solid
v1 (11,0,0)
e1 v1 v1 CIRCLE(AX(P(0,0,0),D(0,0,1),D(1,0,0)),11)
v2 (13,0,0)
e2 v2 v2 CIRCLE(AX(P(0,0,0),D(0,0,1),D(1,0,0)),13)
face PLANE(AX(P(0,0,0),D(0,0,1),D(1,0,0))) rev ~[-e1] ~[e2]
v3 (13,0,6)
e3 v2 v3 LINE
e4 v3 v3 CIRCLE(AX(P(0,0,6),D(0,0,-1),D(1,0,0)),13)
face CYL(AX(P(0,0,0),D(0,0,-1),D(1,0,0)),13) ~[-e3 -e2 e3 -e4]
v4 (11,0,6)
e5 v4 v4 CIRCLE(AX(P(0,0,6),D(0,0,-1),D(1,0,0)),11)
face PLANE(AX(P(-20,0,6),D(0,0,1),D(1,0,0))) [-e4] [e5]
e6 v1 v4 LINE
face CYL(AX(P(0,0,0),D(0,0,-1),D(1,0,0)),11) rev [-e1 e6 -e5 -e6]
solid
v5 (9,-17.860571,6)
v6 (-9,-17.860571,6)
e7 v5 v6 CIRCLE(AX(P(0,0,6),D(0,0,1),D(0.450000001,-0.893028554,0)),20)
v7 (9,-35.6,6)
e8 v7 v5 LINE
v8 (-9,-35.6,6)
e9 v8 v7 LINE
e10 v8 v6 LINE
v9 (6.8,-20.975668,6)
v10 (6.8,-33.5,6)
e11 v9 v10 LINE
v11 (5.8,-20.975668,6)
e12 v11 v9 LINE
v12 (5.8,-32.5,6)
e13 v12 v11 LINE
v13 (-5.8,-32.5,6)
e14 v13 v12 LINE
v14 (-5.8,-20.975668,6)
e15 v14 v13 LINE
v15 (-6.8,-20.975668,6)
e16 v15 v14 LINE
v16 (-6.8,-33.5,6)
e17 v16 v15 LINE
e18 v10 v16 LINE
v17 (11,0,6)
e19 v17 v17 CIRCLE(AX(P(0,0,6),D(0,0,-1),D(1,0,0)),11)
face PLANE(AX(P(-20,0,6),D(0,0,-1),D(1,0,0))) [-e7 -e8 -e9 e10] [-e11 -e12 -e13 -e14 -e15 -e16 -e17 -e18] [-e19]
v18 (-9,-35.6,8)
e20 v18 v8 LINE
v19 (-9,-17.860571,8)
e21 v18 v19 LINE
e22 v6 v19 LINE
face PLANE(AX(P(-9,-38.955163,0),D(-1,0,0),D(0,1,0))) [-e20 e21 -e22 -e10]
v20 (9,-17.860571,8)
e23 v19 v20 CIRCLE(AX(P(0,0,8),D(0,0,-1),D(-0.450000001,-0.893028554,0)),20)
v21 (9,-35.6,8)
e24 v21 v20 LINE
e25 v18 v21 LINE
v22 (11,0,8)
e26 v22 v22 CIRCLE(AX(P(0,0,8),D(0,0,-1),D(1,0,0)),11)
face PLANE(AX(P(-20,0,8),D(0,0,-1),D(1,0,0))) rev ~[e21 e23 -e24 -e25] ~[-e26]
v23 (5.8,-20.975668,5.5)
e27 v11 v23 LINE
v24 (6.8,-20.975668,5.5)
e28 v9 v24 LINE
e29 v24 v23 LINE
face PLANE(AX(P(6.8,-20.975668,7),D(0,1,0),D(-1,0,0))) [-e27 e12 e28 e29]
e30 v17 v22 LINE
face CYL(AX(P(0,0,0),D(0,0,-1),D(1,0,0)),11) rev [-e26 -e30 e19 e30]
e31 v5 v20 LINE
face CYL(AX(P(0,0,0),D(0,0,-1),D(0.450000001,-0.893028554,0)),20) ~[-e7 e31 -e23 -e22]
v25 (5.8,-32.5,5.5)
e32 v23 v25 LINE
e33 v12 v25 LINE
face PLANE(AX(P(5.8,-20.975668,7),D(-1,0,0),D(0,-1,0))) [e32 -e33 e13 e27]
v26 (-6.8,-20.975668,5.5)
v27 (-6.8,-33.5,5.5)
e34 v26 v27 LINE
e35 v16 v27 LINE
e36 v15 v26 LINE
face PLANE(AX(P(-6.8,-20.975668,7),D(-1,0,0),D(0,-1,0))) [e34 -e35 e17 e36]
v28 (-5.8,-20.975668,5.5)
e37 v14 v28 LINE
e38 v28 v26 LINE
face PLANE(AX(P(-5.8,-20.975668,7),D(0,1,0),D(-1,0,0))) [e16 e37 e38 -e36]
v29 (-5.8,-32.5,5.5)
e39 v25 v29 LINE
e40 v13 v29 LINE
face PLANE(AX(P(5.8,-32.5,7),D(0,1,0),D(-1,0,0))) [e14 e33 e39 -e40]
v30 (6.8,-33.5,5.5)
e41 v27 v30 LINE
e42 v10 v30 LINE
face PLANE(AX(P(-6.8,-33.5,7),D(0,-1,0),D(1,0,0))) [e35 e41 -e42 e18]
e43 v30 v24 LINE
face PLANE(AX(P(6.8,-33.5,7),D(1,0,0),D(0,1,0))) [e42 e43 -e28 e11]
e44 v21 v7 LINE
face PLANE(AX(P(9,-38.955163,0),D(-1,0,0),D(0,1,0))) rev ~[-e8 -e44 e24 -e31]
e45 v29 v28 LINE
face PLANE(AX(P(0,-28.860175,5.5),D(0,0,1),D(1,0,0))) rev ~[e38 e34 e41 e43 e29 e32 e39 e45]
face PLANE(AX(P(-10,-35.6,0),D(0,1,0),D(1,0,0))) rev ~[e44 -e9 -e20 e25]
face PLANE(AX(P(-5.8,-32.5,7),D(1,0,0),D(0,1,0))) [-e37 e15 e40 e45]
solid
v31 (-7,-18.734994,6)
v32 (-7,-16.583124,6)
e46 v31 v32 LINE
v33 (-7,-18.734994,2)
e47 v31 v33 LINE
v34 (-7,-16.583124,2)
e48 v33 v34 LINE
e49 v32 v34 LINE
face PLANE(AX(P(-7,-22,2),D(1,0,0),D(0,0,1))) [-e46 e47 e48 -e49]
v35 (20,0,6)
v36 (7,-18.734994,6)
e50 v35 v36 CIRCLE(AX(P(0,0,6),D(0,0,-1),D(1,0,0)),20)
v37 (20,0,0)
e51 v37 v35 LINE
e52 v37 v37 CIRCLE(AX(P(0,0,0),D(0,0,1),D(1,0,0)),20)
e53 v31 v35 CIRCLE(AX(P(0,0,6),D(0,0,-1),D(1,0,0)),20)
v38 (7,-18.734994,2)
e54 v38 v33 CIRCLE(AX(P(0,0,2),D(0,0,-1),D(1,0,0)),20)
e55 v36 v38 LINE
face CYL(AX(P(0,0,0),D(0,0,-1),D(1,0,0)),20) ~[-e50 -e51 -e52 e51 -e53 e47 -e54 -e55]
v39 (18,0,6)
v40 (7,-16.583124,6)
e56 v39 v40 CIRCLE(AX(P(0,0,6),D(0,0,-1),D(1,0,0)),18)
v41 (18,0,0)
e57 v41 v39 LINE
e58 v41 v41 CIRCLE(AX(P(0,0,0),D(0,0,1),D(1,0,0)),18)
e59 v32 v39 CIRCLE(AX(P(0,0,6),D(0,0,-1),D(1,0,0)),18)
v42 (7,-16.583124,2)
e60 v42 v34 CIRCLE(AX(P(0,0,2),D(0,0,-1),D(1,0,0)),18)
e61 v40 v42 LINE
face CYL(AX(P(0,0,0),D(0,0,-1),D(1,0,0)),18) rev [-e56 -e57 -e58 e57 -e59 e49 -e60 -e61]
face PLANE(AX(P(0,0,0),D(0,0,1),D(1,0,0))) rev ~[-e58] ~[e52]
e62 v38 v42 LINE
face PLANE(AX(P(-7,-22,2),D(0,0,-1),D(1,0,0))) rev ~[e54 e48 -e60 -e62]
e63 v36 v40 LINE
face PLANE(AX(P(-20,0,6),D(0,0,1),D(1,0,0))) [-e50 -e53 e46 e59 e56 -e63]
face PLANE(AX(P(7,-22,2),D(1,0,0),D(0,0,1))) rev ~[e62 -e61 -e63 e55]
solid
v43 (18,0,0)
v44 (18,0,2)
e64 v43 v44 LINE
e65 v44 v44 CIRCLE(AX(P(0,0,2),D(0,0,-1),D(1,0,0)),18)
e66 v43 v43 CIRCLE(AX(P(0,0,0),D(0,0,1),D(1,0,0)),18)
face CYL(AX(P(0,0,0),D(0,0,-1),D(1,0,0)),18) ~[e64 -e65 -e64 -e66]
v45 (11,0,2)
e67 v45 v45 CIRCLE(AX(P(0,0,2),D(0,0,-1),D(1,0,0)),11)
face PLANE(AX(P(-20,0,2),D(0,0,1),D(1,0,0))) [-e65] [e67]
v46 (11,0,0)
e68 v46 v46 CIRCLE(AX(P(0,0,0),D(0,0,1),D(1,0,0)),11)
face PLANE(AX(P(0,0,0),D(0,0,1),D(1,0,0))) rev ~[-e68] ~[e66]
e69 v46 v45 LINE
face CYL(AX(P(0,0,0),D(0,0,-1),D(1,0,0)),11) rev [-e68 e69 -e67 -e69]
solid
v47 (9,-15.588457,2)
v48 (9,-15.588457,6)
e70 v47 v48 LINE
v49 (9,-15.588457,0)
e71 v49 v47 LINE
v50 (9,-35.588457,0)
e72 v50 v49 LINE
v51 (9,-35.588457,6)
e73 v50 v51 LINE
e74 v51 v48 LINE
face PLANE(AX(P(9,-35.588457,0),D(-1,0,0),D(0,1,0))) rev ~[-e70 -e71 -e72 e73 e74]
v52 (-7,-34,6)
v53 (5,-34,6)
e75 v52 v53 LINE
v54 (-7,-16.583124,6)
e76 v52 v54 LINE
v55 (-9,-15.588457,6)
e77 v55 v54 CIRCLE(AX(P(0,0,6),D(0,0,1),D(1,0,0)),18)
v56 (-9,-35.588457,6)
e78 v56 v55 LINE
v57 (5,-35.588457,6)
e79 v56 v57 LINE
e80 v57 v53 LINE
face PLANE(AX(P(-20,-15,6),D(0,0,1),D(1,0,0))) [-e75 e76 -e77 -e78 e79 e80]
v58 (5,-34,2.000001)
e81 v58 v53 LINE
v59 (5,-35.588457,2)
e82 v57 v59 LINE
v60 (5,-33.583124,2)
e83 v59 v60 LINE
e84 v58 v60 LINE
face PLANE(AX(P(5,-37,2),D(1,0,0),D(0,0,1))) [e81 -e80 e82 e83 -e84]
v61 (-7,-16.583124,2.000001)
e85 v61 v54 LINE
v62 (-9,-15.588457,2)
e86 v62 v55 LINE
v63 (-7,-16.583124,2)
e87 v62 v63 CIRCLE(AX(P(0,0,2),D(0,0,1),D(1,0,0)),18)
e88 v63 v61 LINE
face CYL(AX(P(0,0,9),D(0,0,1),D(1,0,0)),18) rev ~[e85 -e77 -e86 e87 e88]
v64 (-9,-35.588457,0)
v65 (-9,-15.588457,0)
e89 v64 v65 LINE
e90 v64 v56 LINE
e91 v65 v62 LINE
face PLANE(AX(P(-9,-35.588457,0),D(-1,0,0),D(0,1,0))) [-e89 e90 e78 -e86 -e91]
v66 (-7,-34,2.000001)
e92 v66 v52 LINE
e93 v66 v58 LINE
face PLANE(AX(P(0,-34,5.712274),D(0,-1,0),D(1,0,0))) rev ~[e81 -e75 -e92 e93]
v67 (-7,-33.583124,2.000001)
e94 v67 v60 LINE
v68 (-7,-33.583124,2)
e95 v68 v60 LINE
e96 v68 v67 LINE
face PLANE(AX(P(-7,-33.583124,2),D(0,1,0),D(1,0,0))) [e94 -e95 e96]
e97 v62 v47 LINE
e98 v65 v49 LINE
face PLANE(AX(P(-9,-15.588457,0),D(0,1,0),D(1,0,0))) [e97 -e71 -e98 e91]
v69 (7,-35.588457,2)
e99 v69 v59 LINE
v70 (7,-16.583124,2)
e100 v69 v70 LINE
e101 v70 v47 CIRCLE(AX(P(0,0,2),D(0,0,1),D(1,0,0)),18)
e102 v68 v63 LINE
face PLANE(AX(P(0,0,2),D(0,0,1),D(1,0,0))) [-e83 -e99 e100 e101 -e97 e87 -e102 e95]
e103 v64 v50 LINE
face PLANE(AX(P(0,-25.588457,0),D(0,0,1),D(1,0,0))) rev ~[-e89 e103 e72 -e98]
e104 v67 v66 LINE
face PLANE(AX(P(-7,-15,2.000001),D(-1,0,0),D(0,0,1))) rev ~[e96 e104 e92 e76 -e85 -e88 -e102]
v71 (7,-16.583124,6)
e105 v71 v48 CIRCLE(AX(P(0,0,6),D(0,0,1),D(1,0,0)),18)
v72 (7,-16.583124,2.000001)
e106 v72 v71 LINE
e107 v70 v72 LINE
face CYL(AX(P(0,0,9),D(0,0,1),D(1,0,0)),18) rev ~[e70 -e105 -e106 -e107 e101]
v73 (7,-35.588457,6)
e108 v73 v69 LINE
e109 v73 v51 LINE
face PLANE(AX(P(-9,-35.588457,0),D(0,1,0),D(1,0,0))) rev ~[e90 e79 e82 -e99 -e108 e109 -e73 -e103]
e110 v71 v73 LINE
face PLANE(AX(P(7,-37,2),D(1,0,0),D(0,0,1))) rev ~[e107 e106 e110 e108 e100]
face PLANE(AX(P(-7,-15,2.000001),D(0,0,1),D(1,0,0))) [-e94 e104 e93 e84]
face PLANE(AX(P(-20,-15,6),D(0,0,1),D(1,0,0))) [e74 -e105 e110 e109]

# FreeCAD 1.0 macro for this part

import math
import FreeCAD as App
import Part
import Sketcher

V = App.Vector
Q = App.Units.Quantity


def add_polygon(sketch, points):
    """Adds a closed chain of lines whose ends are joined by coincident constraints."""
    first, n = sketch.GeometryCount, len(points)
    for a, b in zip(points, points[1:] + points[:1]):
        sketch.addGeometry(Part.LineSegment(App.Vector(*a, 0), App.Vector(*b, 0)), False)
    for i in range(n):
        sketch.addConstraint(Sketcher.Constraint("Coincident", first + i, 2, first + (i + 1) % n, 1))

doc = App.newDocument("Part")
body = doc.addObject("PartDesign::Body", "Body")

# Sketch on XY plane
sketch1 = body.newObject("Sketcher::SketchObject", "Sketch")
sketch1.AttachmentSupport = (doc.getObject("XY_Plane"), [""])
sketch1.MapMode = "FlatFace"
sketch1.addGeometry(Part.Circle(V(0, 0, 0), V(0, 0, 1), 20), False)
sketch1.addConstraint(Sketcher.Constraint("Coincident", 0, 3, -1, 1))
sketch1.addConstraint(Sketcher.Constraint("Diameter", 0, Q("40 mm")))
pad1 = body.newObject("PartDesign::Pad", "Pad")
pad1.Profile = sketch1
pad1.Length = 30

# Sketch on XY plane
sketch2 = body.newObject("Sketcher::SketchObject", "Sketch001")
sketch2.AttachmentSupport = (doc.getObject("XY_Plane"), [""])
sketch2.MapMode = "FlatFace"
sketch2.addGeometry(Part.Circle(V(0, 0, 0), V(0, 0, 1), 18), False)
sketch2.addConstraint(Sketcher.Constraint("Coincident", 0, 3, -1, 1))
sketch2.addConstraint(Sketcher.Constraint("Diameter", 0, Q("36 mm")))
pocket1 = body.newObject("PartDesign::Pocket", "Pocket")
pocket1.Profile = sketch2
pocket1.Length = 40
pocket1.Reversed = True

# Sketch on XZ plane
sketch3 = body.newObject("Sketcher::SketchObject", "Sketch002")
sketch3.AttachmentSupport = (doc.getObject("XZ_Plane"), [""])
sketch3.MapMode = "FlatFace"
add_polygon(sketch3, [(-20, 32), (-20, 6), (20, 6), (20, 32)])  # lines 0-3
sketch3.addConstraint(Sketcher.Constraint("Vertical", 0))
sketch3.addConstraint(Sketcher.Constraint("Horizontal", 1))
sketch3.addConstraint(Sketcher.Constraint("Vertical", 2))
sketch3.addConstraint(Sketcher.Constraint("Horizontal", 3))
sketch3.addConstraint(Sketcher.Constraint("DistanceX", 1, 1, 1, 2, Q("40 mm")))
sketch3.addConstraint(Sketcher.Constraint("DistanceY", 0, 2, 0, 1, Q("26 mm")))
sketch3.addConstraint(Sketcher.Constraint("DistanceX", 0, 2, -1, 1, Q("20 mm")))
sketch3.addConstraint(Sketcher.Constraint("DistanceY", -1, 1, 0, 2, Q("6 mm")))
pocket2 = body.newObject("PartDesign::Pocket", "Pocket001")
pocket2.Profile = sketch3
pocket2.Type = "ThroughAll"
pocket2.Midplane = True

# Sketch on XZ plane
sketch4 = body.newObject("Sketcher::SketchObject", "Sketch003")
sketch4.AttachmentSupport = (doc.getObject("XZ_Plane"), [""])
sketch4.MapMode = "FlatFace"
sketch4.AttachmentOffset = App.Placement(V(0, 0, 22), App.Rotation())
add_polygon(sketch4, [(-7, 10), (-7, 2), (7, 2), (7, 10)])  # lines 0-3
sketch4.addConstraint(Sketcher.Constraint("Vertical", 0))
sketch4.addConstraint(Sketcher.Constraint("Horizontal", 1))
sketch4.addConstraint(Sketcher.Constraint("Vertical", 2))
sketch4.addConstraint(Sketcher.Constraint("Horizontal", 3))
sketch4.addConstraint(Sketcher.Constraint("DistanceX", 1, 1, 1, 2, Q("14 mm")))
sketch4.addConstraint(Sketcher.Constraint("DistanceX", 0, 2, -1, 1, Q("7 mm")))
sketch4.addConstraint(Sketcher.Constraint("DistanceY", -1, 1, 0, 2, Q("2 mm")))
sketch4.addConstraint(Sketcher.Constraint("DistanceY", 0, 2, 0, 1, Q("7.569522 mm")))
pocket3 = body.newObject("PartDesign::Pocket", "Pocket002")
pocket3.Profile = sketch4
pocket3.Length = 6
body2 = doc.addObject("PartDesign::Body", "Body001")

# Sketch on XY plane
sketch5 = body2.newObject("Sketcher::SketchObject", "Sketch004")
sketch5.AttachmentSupport = (doc.getObject("XY_Plane001"), [""])
sketch5.MapMode = "FlatFace"
sketch5.addGeometry(Part.Circle(V(0, 0, 0), V(0, 0, 1), 13), False)
sketch5.addConstraint(Sketcher.Constraint("Coincident", 0, 3, -1, 1))
sketch5.addConstraint(Sketcher.Constraint("Diameter", 0, Q("26 mm")))
pad2 = body2.newObject("PartDesign::Pad", "Pad001")
pad2.Profile = sketch5
pad2.Length = 30

# Sketch on XZ plane
sketch6 = body2.newObject("Sketcher::SketchObject", "Sketch005")
sketch6.AttachmentSupport = (doc.getObject("XZ_Plane001"), [""])
sketch6.MapMode = "FlatFace"
add_polygon(sketch6, [(-20, 32), (-20, 6), (20, 6), (20, 32)])  # lines 0-3
sketch6.addConstraint(Sketcher.Constraint("Vertical", 0))
sketch6.addConstraint(Sketcher.Constraint("Horizontal", 1))
sketch6.addConstraint(Sketcher.Constraint("Vertical", 2))
sketch6.addConstraint(Sketcher.Constraint("Horizontal", 3))
sketch6.addConstraint(Sketcher.Constraint("DistanceX", 1, 1, 1, 2, Q("40 mm")))
sketch6.addConstraint(Sketcher.Constraint("DistanceY", 0, 2, 0, 1, Q("26 mm")))
sketch6.addConstraint(Sketcher.Constraint("DistanceX", 0, 2, -1, 1, Q("20 mm")))
sketch6.addConstraint(Sketcher.Constraint("DistanceY", -1, 1, 0, 2, Q("6 mm")))
pocket4 = body2.newObject("PartDesign::Pocket", "Pocket003")
pocket4.Profile = sketch6
pocket4.Type = "ThroughAll"
pocket4.Midplane = True

# Sketch on XY plane
sketch7 = body2.newObject("Sketcher::SketchObject", "Sketch006")
sketch7.AttachmentSupport = (doc.getObject("XY_Plane001"), [""])
sketch7.MapMode = "FlatFace"
sketch7.addGeometry(Part.Circle(V(0, 0, 0), V(0, 0, 1), 11), False)
sketch7.addConstraint(Sketcher.Constraint("Coincident", 0, 3, -1, 1))
sketch7.addConstraint(Sketcher.Constraint("Diameter", 0, Q("22 mm")))
pocket5 = body2.newObject("PartDesign::Pocket", "Pocket004")
pocket5.Profile = sketch7
pocket5.Type = "ThroughAll"
pocket5.Reversed = True
body3 = doc.addObject("PartDesign::Body", "Body002")

# Sketch on XY plane
sketch8 = body3.newObject("Sketcher::SketchObject", "Sketch007")
sketch8.AttachmentSupport = (doc.getObject("XY_Plane002"), [""])
sketch8.MapMode = "FlatFace"
sketch8.addGeometry(Part.Circle(V(0, 0, 0), V(0, 0, 1), 18), False)
sketch8.addConstraint(Sketcher.Constraint("Coincident", 0, 3, -1, 1))
sketch8.addConstraint(Sketcher.Constraint("Diameter", 0, Q("36 mm")))
pad3 = body3.newObject("PartDesign::Pad", "Pad002")
pad3.Profile = sketch8
pad3.Length = 30

# Sketch on XZ plane
sketch9 = body3.newObject("Sketcher::SketchObject", "Sketch008")
sketch9.AttachmentSupport = (doc.getObject("XZ_Plane002"), [""])
sketch9.MapMode = "FlatFace"
add_polygon(sketch9, [(-20, 32), (-20, 2), (20, 2), (20, 32)])  # lines 0-3
sketch9.addConstraint(Sketcher.Constraint("Vertical", 0))
sketch9.addConstraint(Sketcher.Constraint("Horizontal", 1))
sketch9.addConstraint(Sketcher.Constraint("Vertical", 2))
sketch9.addConstraint(Sketcher.Constraint("Horizontal", 3))
sketch9.addConstraint(Sketcher.Constraint("DistanceX", 1, 1, 1, 2, Q("40 mm")))
sketch9.addConstraint(Sketcher.Constraint("DistanceY", 0, 2, 0, 1, Q("30 mm")))
sketch9.addConstraint(Sketcher.Constraint("DistanceX", 0, 2, -1, 1, Q("20 mm")))
sketch9.addConstraint(Sketcher.Constraint("DistanceY", -1, 1, 0, 2, Q("2 mm")))
pocket6 = body3.newObject("PartDesign::Pocket", "Pocket005")
pocket6.Profile = sketch9
pocket6.Type = "ThroughAll"
pocket6.Midplane = True

# Sketch on XY plane
sketch10 = body3.newObject("Sketcher::SketchObject", "Sketch009")
sketch10.AttachmentSupport = (doc.getObject("XY_Plane002"), [""])
sketch10.MapMode = "FlatFace"
sketch10.addGeometry(Part.Circle(V(0, 0, 0), V(0, 0, 1), 11), False)
sketch10.addConstraint(Sketcher.Constraint("Coincident", 0, 3, -1, 1))
sketch10.addConstraint(Sketcher.Constraint("Diameter", 0, Q("22 mm")))
pocket7 = body3.newObject("PartDesign::Pocket", "Pocket006")
pocket7.Profile = sketch10
pocket7.Type = "ThroughAll"
pocket7.Reversed = True
body4 = doc.addObject("PartDesign::Body", "Body003")

# Sketch on XY plane
sketch11 = body4.newObject("Sketcher::SketchObject", "Sketch010")
sketch11.AttachmentSupport = (doc.getObject("XY_Plane003"), [""])
sketch11.MapMode = "FlatFace"
add_polygon(sketch11, [(-9, -16), (-9, -36), (9, -36), (9, -16)])  # lines 0-3
sketch11.addConstraint(Sketcher.Constraint("Vertical", 0))
sketch11.addConstraint(Sketcher.Constraint("Horizontal", 1))
sketch11.addConstraint(Sketcher.Constraint("Vertical", 2))
sketch11.addConstraint(Sketcher.Constraint("Horizontal", 3))
sketch11.addConstraint(Sketcher.Constraint("DistanceX", 1, 1, 1, 2, Q("18 mm")))
sketch11.addConstraint(Sketcher.Constraint("DistanceY", 0, 2, 0, 1, Q("20 mm")))
sketch11.addConstraint(Sketcher.Constraint("DistanceX", 0, 2, -1, 1, Q("9 mm")))
sketch11.addConstraint(Sketcher.Constraint("DistanceY", 0, 2, -1, 1, Q("35.588457 mm")))
pad4 = body4.newObject("PartDesign::Pad", "Pad003")
pad4.Profile = sketch11
pad4.Length = 9

# Sketch on XY plane
sketch12 = body4.newObject("Sketcher::SketchObject", "Sketch011")
sketch12.AttachmentSupport = (doc.getObject("XY_Plane003"), [""])
sketch12.MapMode = "FlatFace"
sketch12.AttachmentOffset = App.Placement(V(0, 0, 2), App.Rotation())
add_polygon(sketch12, [(-7, -17), (-7, -34), (7, -34), (7, -17)])  # lines 0-3
sketch12.addConstraint(Sketcher.Constraint("Vertical", 0))
sketch12.addConstraint(Sketcher.Constraint("Horizontal", 1))
sketch12.addConstraint(Sketcher.Constraint("Vertical", 2))
sketch12.addConstraint(Sketcher.Constraint("Horizontal", 3))
sketch12.addConstraint(Sketcher.Constraint("DistanceX", 1, 1, 1, 2, Q("14 mm")))
sketch12.addConstraint(Sketcher.Constraint("DistanceY", 0, 2, 0, 1, Q("17 mm")))
sketch12.addConstraint(Sketcher.Constraint("DistanceX", 0, 2, -1, 1, Q("7 mm")))
sketch12.addConstraint(Sketcher.Constraint("DistanceY", 0, 2, -1, 1, Q("33.583124 mm")))
pocket8 = body4.newObject("PartDesign::Pocket", "Pocket007")
pocket8.Profile = sketch12
pocket8.Length = 7
pocket8.Reversed = True

# Sketch on XZ plane
sketch13 = body4.newObject("Sketcher::SketchObject", "Sketch012")
sketch13.AttachmentSupport = (doc.getObject("XZ_Plane003"), [""])
sketch13.MapMode = "FlatFace"
sketch13.AttachmentOffset = App.Placement(V(0, 0, 15), App.Rotation())
add_polygon(sketch13, [(-20, 32), (-20, 6), (20, 6), (20, 32)])  # lines 0-3
sketch13.addConstraint(Sketcher.Constraint("Vertical", 0))
sketch13.addConstraint(Sketcher.Constraint("Horizontal", 1))
sketch13.addConstraint(Sketcher.Constraint("Vertical", 2))
sketch13.addConstraint(Sketcher.Constraint("Horizontal", 3))
sketch13.addConstraint(Sketcher.Constraint("DistanceX", 1, 1, 1, 2, Q("40 mm")))
sketch13.addConstraint(Sketcher.Constraint("DistanceY", 0, 2, 0, 1, Q("26 mm")))
sketch13.addConstraint(Sketcher.Constraint("DistanceX", 0, 2, -1, 1, Q("20 mm")))
sketch13.addConstraint(Sketcher.Constraint("DistanceY", -1, 1, 0, 2, Q("6 mm")))
pocket9 = body4.newObject("PartDesign::Pocket", "Pocket008")
pocket9.Profile = sketch13
pocket9.Length = 21
pocket9.Reversed = True

# Sketch on XZ plane
sketch14 = body4.newObject("Sketcher::SketchObject", "Sketch013")
sketch14.AttachmentSupport = (doc.getObject("XZ_Plane003"), [""])
sketch14.MapMode = "FlatFace"
sketch14.AttachmentOffset = App.Placement(V(0, 0, 15), App.Rotation())
add_polygon(sketch14, [(-7, 9), (-7, 2), (7, 2), (7, 9)])  # lines 0-3
sketch14.addConstraint(Sketcher.Constraint("Vertical", 0))
sketch14.addConstraint(Sketcher.Constraint("Horizontal", 1))
sketch14.addConstraint(Sketcher.Constraint("Vertical", 2))
sketch14.addConstraint(Sketcher.Constraint("Horizontal", 3))
sketch14.addConstraint(Sketcher.Constraint("DistanceX", 1, 1, 1, 2, Q("14 mm")))
sketch14.addConstraint(Sketcher.Constraint("DistanceX", 0, 2, -1, 1, Q("7 mm")))
sketch14.addConstraint(Sketcher.Constraint("DistanceY", -1, 1, 0, 2, Q("2.000001 mm")))
sketch14.addConstraint(Sketcher.Constraint("DistanceY", 0, 2, 0, 1, Q("7.424547 mm")))
pocket10 = body4.newObject("PartDesign::Pocket", "Pocket009")
pocket10.Profile = sketch14
pocket10.Length = 19
pocket10.Reversed = True

# Sketch on XY plane
sketch15 = body4.newObject("Sketcher::SketchObject", "Sketch014")
sketch15.AttachmentSupport = (doc.getObject("XY_Plane003"), [""])
sketch15.MapMode = "FlatFace"
sketch15.AttachmentOffset = App.Placement(V(0, 0, 9), App.Rotation())
sketch15.addGeometry(Part.Circle(V(0, 0, 0), V(0, 0, 1), 18), False)
sketch15.addConstraint(Sketcher.Constraint("Coincident", 0, 3, -1, 1))
sketch15.addConstraint(Sketcher.Constraint("Diameter", 0, Q("36 mm")))
pocket11 = body4.newObject("PartDesign::Pocket", "Pocket010")
pocket11.Profile = sketch15
pocket11.Length = 7

# Sketch on XZ plane
sketch16 = body4.newObject("Sketcher::SketchObject", "Sketch015")
sketch16.AttachmentSupport = (doc.getObject("XZ_Plane003"), [""])
sketch16.MapMode = "FlatFace"
sketch16.AttachmentOffset = App.Placement(V(0, 0, 37), App.Rotation())
add_polygon(sketch16, [(5, 10), (5, 2), (7, 2), (7, 10)])  # lines 0-3
sketch16.addConstraint(Sketcher.Constraint("Vertical", 0))
sketch16.addConstraint(Sketcher.Constraint("Horizontal", 1))
sketch16.addConstraint(Sketcher.Constraint("Vertical", 2))
sketch16.addConstraint(Sketcher.Constraint("Horizontal", 3))
sketch16.addConstraint(Sketcher.Constraint("DistanceX", 1, 1, 1, 2, Q("2 mm")))
sketch16.addConstraint(Sketcher.Constraint("DistanceY", 0, 2, 0, 1, Q("8 mm")))
sketch16.addConstraint(Sketcher.Constraint("DistanceX", -1, 1, 0, 2, Q("5 mm")))
sketch16.addConstraint(Sketcher.Constraint("DistanceY", -1, 1, 0, 2, Q("2 mm")))
pocket12 = body4.newObject("PartDesign::Pocket", "Pocket011")
pocket12.Profile = sketch16
pocket12.Length = 5
body5 = doc.addObject("PartDesign::Body", "Body004")

# Sketch on XZ plane
sketch17 = body5.newObject("Sketcher::SketchObject", "Sketch016")
sketch17.AttachmentSupport = (doc.getObject("XZ_Plane004"), [""])
sketch17.MapMode = "FlatFace"
add_polygon(sketch17, [(-20, 32), (-20, 6), (20, 6), (20, 32)])  # lines 0-3
sketch17.addConstraint(Sketcher.Constraint("Vertical", 0))
sketch17.addConstraint(Sketcher.Constraint("Horizontal", 1))
sketch17.addConstraint(Sketcher.Constraint("Vertical", 2))
sketch17.addConstraint(Sketcher.Constraint("Horizontal", 3))
sketch17.addConstraint(Sketcher.Constraint("DistanceX", 1, 1, 1, 2, Q("40 mm")))
sketch17.addConstraint(Sketcher.Constraint("DistanceY", 0, 2, 0, 1, Q("26 mm")))
sketch17.addConstraint(Sketcher.Constraint("DistanceX", 0, 2, -1, 1, Q("20 mm")))
sketch17.addConstraint(Sketcher.Constraint("DistanceY", -1, 1, 0, 2, Q("6 mm")))
pad5 = body5.newObject("PartDesign::Pad", "Pad004")
pad5.Profile = sketch17
pad5.Length = 72
pad5.Midplane = True

# Sketch on XZ plane
sketch18 = body5.newObject("Sketcher::SketchObject", "Sketch017")
sketch18.AttachmentSupport = (doc.getObject("XZ_Plane004"), [""])
sketch18.MapMode = "FlatFace"
add_polygon(sketch18, [(-20, 34), (-20, 8), (20, 8), (20, 34)])  # lines 0-3
sketch18.addConstraint(Sketcher.Constraint("Vertical", 0))
sketch18.addConstraint(Sketcher.Constraint("Horizontal", 1))
sketch18.addConstraint(Sketcher.Constraint("Vertical", 2))
sketch18.addConstraint(Sketcher.Constraint("Horizontal", 3))
sketch18.addConstraint(Sketcher.Constraint("DistanceX", 1, 1, 1, 2, Q("40 mm")))
sketch18.addConstraint(Sketcher.Constraint("DistanceY", 0, 2, 0, 1, Q("26 mm")))
sketch18.addConstraint(Sketcher.Constraint("DistanceX", 0, 2, -1, 1, Q("20 mm")))
sketch18.addConstraint(Sketcher.Constraint("DistanceY", -1, 1, 0, 2, Q("8 mm")))
pocket13 = body5.newObject("PartDesign::Pocket", "Pocket012")
pocket13.Profile = sketch18
pocket13.Length = 72
pocket13.Midplane = True

# Sketch on XY plane
sketch19 = body5.newObject("Sketcher::SketchObject", "Sketch018")
sketch19.AttachmentSupport = (doc.getObject("XY_Plane004"), [""])
sketch19.MapMode = "FlatFace"
sketch19.addGeometry(Part.Circle(V(0, 0, 0), V(0, 0, 1), 11), False)
sketch19.addConstraint(Sketcher.Constraint("Coincident", 0, 3, -1, 1))
sketch19.addConstraint(Sketcher.Constraint("Diameter", 0, Q("22 mm")))
pocket14 = body5.newObject("PartDesign::Pocket", "Pocket013")
pocket14.Profile = sketch19
pocket14.Type = "ThroughAll"
pocket14.Reversed = True

# Sketch on XY plane
sketch20 = body5.newObject("Sketcher::SketchObject", "Sketch019")
sketch20.AttachmentSupport = (doc.getObject("XY_Plane004"), [""])
sketch20.MapMode = "FlatFace"
sketch20.addGeometry(Part.LineSegment(V(9, -18, 0), V(9, -39, 0)), False)
sketch20.addGeometry(Part.LineSegment(V(9, -39, 0), V(27, -39, 0)), False)
sketch20.addGeometry(Part.LineSegment(V(27, -39, 0), V(27, 41, 0)), False)
sketch20.addGeometry(Part.LineSegment(V(27, 41, 0), V(-27, 41, 0)), False)
sketch20.addGeometry(Part.LineSegment(V(-27, 41, 0), V(-27, -39, 0)), False)
sketch20.addGeometry(Part.LineSegment(V(-27, -39, 0), V(-9, -39, 0)), False)
sketch20.addGeometry(Part.LineSegment(V(-9, -39, 0), V(-9, -18, 0)), False)
sketch20.addGeometry(Part.ArcOfCircle(Part.Circle(V(0, 0, 0), V(0, 0, 1), 20), math.radians(-63), math.radians(243)), False)
sketch20.addConstraint(Sketcher.Constraint("Coincident", 0, 2, 1, 1))
sketch20.addConstraint(Sketcher.Constraint("Coincident", 1, 2, 2, 1))
sketch20.addConstraint(Sketcher.Constraint("Coincident", 2, 2, 3, 1))
sketch20.addConstraint(Sketcher.Constraint("Coincident", 3, 2, 4, 1))
sketch20.addConstraint(Sketcher.Constraint("Coincident", 4, 2, 5, 1))
sketch20.addConstraint(Sketcher.Constraint("Coincident", 5, 2, 6, 1))
sketch20.addConstraint(Sketcher.Constraint("Coincident", 6, 2, 7, 2))
sketch20.addConstraint(Sketcher.Constraint("Coincident", 7, 1, 0, 1))
sketch20.addConstraint(Sketcher.Constraint("Vertical", 0))
sketch20.addConstraint(Sketcher.Constraint("Horizontal", 1))
sketch20.addConstraint(Sketcher.Constraint("Vertical", 2))
sketch20.addConstraint(Sketcher.Constraint("Horizontal", 3))
sketch20.addConstraint(Sketcher.Constraint("Vertical", 4))
sketch20.addConstraint(Sketcher.Constraint("Horizontal", 5))
sketch20.addConstraint(Sketcher.Constraint("Vertical", 6))
sketch20.addConstraint(Sketcher.Constraint("Coincident", 7, 3, -1, 1))
sketch20.addConstraint(Sketcher.Constraint("Symmetric", 1, 2, 4, 2, -2))
sketch20.addConstraint(Sketcher.Constraint("Horizontal", 6, 2, 7, 1))
sketch20.addConstraint(Sketcher.Constraint("Radius", 7, Q("20 mm")))
sketch20.addConstraint(Sketcher.Constraint("DistanceX", 1, 1, 1, 2, Q("18 mm")))
sketch20.addConstraint(Sketcher.Constraint("DistanceX", 3, 2, 3, 1, Q("54 mm")))
sketch20.addConstraint(Sketcher.Constraint("DistanceY", 2, 1, 2, 2, Q("80 mm")))
sketch20.addConstraint(Sketcher.Constraint("DistanceY", 0, 2, 0, 1, Q("21.094592 mm")))
pocket15 = body5.newObject("PartDesign::Pocket", "Pocket014")
pocket15.Profile = sketch20
pocket15.Length = 25
pocket15.Reversed = True

# Sketch on XY plane
sketch21 = body5.newObject("Sketcher::SketchObject", "Sketch020")
sketch21.AttachmentSupport = (doc.getObject("XY_Plane004"), [""])
sketch21.MapMode = "FlatFace"
add_polygon(sketch21, [(-10, -36), (-10, -41), (10, -41), (10, -36)])  # lines 0-3
sketch21.addConstraint(Sketcher.Constraint("Vertical", 0))
sketch21.addConstraint(Sketcher.Constraint("Horizontal", 1))
sketch21.addConstraint(Sketcher.Constraint("Vertical", 2))
sketch21.addConstraint(Sketcher.Constraint("Horizontal", 3))
sketch21.addConstraint(Sketcher.Constraint("DistanceX", 1, 1, 1, 2, Q("20 mm")))
sketch21.addConstraint(Sketcher.Constraint("DistanceY", 0, 2, 0, 1, Q("5 mm")))
sketch21.addConstraint(Sketcher.Constraint("DistanceX", 0, 2, -1, 1, Q("10 mm")))
sketch21.addConstraint(Sketcher.Constraint("DistanceY", 0, 2, -1, 1, Q("40.6 mm")))
pocket16 = body5.newObject("PartDesign::Pocket", "Pocket015")
pocket16.Profile = sketch21
pocket16.Length = 15
pocket16.Reversed = True

# Sketch on XY plane
sketch22 = body5.newObject("Sketcher::SketchObject", "Sketch021")
sketch22.AttachmentSupport = (doc.getObject("XY_Plane004"), [""])
sketch22.MapMode = "FlatFace"
sketch22.AttachmentOffset = App.Placement(V(0, 0, 7), App.Rotation())
add_polygon(sketch22, [(-6.8, -21), (-6.8, -33.5), (6.8, -33.5), (6.8, -21), (5.8, -21), (5.8, -32.5), (-5.8, -32.5), (-5.8, -21)])  # lines 0-7
sketch22.addConstraint(Sketcher.Constraint("Vertical", 0))
sketch22.addConstraint(Sketcher.Constraint("Horizontal", 1))
sketch22.addConstraint(Sketcher.Constraint("Vertical", 2))
sketch22.addConstraint(Sketcher.Constraint("Horizontal", 3))
sketch22.addConstraint(Sketcher.Constraint("Vertical", 4))
sketch22.addConstraint(Sketcher.Constraint("Horizontal", 5))
sketch22.addConstraint(Sketcher.Constraint("Vertical", 6))
sketch22.addConstraint(Sketcher.Constraint("Horizontal", 7))
sketch22.addConstraint(Sketcher.Constraint("Symmetric", 3, 2, 6, 2, -2))
sketch22.addConstraint(Sketcher.Constraint("Equal", 3, 7))
sketch22.addConstraint(Sketcher.Constraint("DistanceX", 3, 2, 3, 1, Q("1 mm")))
sketch22.addConstraint(Sketcher.Constraint("DistanceX", 1, 1, 1, 2, Q("13.6 mm")))
sketch22.addConstraint(Sketcher.Constraint("DistanceY", 1, 2, 4, 2, Q("1 mm")))
sketch22.addConstraint(Sketcher.Constraint("DistanceY", 0, 2, -1, 1, Q("33.5 mm")))
sketch22.addConstraint(Sketcher.Constraint("DistanceY", 0, 2, 0, 1, Q("12.524332 mm")))
pad6 = body5.newObject("PartDesign::Pad", "Pad005")
pad6.Profile = sketch22
pad6.Length = 1.5
pad6.Reversed = True

doc.recompute()
